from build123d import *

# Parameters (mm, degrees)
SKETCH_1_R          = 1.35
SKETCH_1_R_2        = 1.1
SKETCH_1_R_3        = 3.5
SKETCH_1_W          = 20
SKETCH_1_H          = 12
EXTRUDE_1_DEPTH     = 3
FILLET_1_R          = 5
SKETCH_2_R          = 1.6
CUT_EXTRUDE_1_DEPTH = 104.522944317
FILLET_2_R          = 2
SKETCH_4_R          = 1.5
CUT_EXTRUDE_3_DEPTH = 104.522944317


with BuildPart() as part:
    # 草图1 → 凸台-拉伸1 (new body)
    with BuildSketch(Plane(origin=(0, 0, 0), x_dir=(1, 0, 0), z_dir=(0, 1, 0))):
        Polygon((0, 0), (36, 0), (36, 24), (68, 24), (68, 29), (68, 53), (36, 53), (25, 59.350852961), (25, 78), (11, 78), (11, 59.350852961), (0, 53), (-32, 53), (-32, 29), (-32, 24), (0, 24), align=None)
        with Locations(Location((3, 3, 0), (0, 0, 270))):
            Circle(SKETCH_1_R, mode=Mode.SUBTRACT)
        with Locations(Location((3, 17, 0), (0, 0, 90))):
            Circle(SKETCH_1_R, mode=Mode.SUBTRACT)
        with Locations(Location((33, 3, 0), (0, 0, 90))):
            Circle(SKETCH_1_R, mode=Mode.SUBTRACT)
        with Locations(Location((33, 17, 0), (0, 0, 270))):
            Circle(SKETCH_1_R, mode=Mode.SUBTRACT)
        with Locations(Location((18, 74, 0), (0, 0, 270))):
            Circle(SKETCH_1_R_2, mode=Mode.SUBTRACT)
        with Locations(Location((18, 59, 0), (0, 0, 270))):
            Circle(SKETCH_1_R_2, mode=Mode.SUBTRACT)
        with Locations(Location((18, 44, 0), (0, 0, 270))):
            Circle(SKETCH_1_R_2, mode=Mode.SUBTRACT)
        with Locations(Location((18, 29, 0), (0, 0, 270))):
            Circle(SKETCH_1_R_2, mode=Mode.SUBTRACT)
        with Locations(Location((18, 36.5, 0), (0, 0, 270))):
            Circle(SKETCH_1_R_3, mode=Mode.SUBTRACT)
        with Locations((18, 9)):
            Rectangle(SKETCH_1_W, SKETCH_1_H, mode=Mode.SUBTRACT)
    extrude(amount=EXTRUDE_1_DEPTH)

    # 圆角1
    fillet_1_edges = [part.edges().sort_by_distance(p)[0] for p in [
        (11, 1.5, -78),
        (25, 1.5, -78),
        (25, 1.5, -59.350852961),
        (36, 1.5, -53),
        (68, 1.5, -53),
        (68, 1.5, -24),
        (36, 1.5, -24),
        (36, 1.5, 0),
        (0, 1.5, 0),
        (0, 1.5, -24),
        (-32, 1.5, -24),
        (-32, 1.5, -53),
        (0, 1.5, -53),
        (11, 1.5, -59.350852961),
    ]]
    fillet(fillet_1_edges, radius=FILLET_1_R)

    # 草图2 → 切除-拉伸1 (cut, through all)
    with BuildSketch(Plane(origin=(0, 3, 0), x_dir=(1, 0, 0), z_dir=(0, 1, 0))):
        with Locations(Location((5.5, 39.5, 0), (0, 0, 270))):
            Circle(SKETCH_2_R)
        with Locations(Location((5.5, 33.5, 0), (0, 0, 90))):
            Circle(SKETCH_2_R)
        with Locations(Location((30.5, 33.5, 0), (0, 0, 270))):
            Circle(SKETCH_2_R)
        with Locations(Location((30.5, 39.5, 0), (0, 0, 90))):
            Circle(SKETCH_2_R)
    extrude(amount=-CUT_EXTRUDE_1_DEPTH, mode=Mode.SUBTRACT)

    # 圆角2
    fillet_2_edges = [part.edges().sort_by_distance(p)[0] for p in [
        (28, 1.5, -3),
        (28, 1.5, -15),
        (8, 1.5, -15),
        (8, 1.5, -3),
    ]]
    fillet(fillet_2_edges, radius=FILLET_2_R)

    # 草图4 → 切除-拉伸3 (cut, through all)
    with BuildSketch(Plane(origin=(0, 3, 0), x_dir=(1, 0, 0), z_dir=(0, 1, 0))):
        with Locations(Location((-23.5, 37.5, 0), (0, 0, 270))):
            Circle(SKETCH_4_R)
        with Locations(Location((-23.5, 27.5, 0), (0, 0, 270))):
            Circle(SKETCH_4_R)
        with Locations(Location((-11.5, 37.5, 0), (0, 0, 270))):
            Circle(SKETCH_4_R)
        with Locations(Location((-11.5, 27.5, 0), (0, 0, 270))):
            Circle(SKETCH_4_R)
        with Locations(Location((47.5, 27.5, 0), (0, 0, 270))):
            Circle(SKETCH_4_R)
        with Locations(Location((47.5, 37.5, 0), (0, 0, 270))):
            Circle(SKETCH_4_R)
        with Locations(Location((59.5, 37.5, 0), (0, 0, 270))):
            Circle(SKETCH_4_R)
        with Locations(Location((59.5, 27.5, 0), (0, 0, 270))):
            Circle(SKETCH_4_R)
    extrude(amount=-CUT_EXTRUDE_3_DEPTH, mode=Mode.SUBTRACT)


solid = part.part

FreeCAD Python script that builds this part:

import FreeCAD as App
import Part
import Sketcher
Q = App.Units.Quantity


def edges_at(feature, points):
    """Names of the edges that pass closest to the given points."""
    edges = feature.Shape.Edges
    near = lambda p: min(range(len(edges)), key=lambda i: edges[i].distToShape(Part.Vertex(*p))[0])
    return sorted({f"Edge{near(p) + 1}" for p in points})

doc = App.newDocument("Part")
body = doc.addObject("PartDesign::Body", "Body")

sketch1 = body.newObject("Sketcher::SketchObject", "Sketch")
sketch1.AttachmentSupport = (doc.getObject("XZ_Plane"), [""])
sketch1.MapMode = "FlatFace"
sketch1.addGeometry(Part.LineSegment(App.Vector(0, 0, 0), App.Vector(36, 0, 0)), False)
sketch1.addGeometry(Part.LineSegment(App.Vector(36, 0, 0), App.Vector(36, -24, 0)), False)
sketch1.addGeometry(Part.LineSegment(App.Vector(36, -24, 0), App.Vector(68, -24, 0)), False)
sketch1.addGeometry(Part.LineSegment(App.Vector(68, -24, 0), App.Vector(68, -53, 0)), False)
sketch1.addGeometry(Part.LineSegment(App.Vector(68, -53, 0), App.Vector(36, -53, 0)), False)
sketch1.addGeometry(Part.LineSegment(App.Vector(36, -53, 0), App.Vector(25, -59.350853, 0)), False)
sketch1.addGeometry(Part.LineSegment(App.Vector(25, -59.350853, 0), App.Vector(25, -78, 0)), False)
sketch1.addGeometry(Part.LineSegment(App.Vector(25, -78, 0), App.Vector(11, -78, 0)), False)
sketch1.addGeometry(Part.LineSegment(App.Vector(11, -78, 0), App.Vector(11, -59.350853, 0)), False)
sketch1.addGeometry(Part.LineSegment(App.Vector(11, -59.350853, 0), App.Vector(0, -53, 0)), False)
sketch1.addGeometry(Part.LineSegment(App.Vector(0, -53, 0), App.Vector(-32, -53, 0)), False)
sketch1.addGeometry(Part.LineSegment(App.Vector(-32, -53, 0), App.Vector(-32, -24, 0)), False)
sketch1.addGeometry(Part.LineSegment(App.Vector(-32, -24, 0), App.Vector(0, -24, 0)), False)
sketch1.addGeometry(Part.LineSegment(App.Vector(0, -24, 0), App.Vector(0, 0, 0)), False)
sketch1.addGeometry(Part.Circle(App.Vector(3, -3, 0), App.Vector(0, 0, 1), 1.35), False)
sketch1.addGeometry(Part.Circle(App.Vector(3, -17, 0), App.Vector(0, 0, 1), 1.35), False)
sketch1.addGeometry(Part.LineSegment(App.Vector(28, -3, 0), App.Vector(8, -3, 0)), False)
sketch1.addGeometry(Part.LineSegment(App.Vector(8, -3, 0), App.Vector(8, -15, 0)), False)
sketch1.addGeometry(Part.LineSegment(App.Vector(8, -15, 0), App.Vector(28, -15, 0)), False)
sketch1.addGeometry(Part.LineSegment(App.Vector(28, -15, 0), App.Vector(28, -3, 0)), False)
sketch1.addGeometry(Part.Circle(App.Vector(33, -3, 0), App.Vector(0, 0, 1), 1.35), False)
sketch1.addGeometry(Part.Circle(App.Vector(33, -17, 0), App.Vector(0, 0, 1), 1.35), False)
sketch1.addGeometry(Part.Circle(App.Vector(18, -29, 0), App.Vector(0, 0, 1), 1.1), False)
sketch1.addGeometry(Part.Circle(App.Vector(18, -36.5, 0), App.Vector(0, 0, 1), 3.5), False)
sketch1.addGeometry(Part.Circle(App.Vector(18, -44, 0), App.Vector(0, 0, 1), 1.1), False)
sketch1.addGeometry(Part.Circle(App.Vector(18, -59, 0), App.Vector(0, 0, 1), 1.1), False)
sketch1.addGeometry(Part.Circle(App.Vector(18, -74, 0), App.Vector(0, 0, 1), 1.1), False)
sketch1.addConstraint(Sketcher.Constraint("Coincident", 0, 2, 1, 1))
sketch1.addConstraint(Sketcher.Constraint("Coincident", 1, 2, 2, 1))
sketch1.addConstraint(Sketcher.Constraint("Coincident", 2, 2, 3, 1))
sketch1.addConstraint(Sketcher.Constraint("Coincident", 3, 2, 4, 1))
sketch1.addConstraint(Sketcher.Constraint("Coincident", 4, 2, 5, 1))
sketch1.addConstraint(Sketcher.Constraint("Coincident", 5, 2, 6, 1))
sketch1.addConstraint(Sketcher.Constraint("Coincident", 6, 2, 7, 1))
sketch1.addConstraint(Sketcher.Constraint("Coincident", 7, 2, 8, 1))
sketch1.addConstraint(Sketcher.Constraint("Coincident", 8, 2, 9, 1))
sketch1.addConstraint(Sketcher.Constraint("Coincident", 9, 2, 10, 1))
sketch1.addConstraint(Sketcher.Constraint("Coincident", 10, 2, 11, 1))
sketch1.addConstraint(Sketcher.Constraint("Coincident", 11, 2, 12, 1))
sketch1.addConstraint(Sketcher.Constraint("Coincident", 12, 2, 13, 1))
sketch1.addConstraint(Sketcher.Constraint("Coincident", 13, 2, 0, 1))
sketch1.addConstraint(Sketcher.Constraint("Coincident", 16, 2, 17, 1))
sketch1.addConstraint(Sketcher.Constraint("Coincident", 17, 2, 18, 1))
sketch1.addConstraint(Sketcher.Constraint("Coincident", 18, 2, 19, 1))
sketch1.addConstraint(Sketcher.Constraint("Coincident", 19, 2, 16, 1))
sketch1.addConstraint(Sketcher.Constraint("Horizontal", 0))
sketch1.addConstraint(Sketcher.Constraint("Vertical", 1))
sketch1.addConstraint(Sketcher.Constraint("Horizontal", 2))
sketch1.addConstraint(Sketcher.Constraint("Vertical", 3))
sketch1.addConstraint(Sketcher.Constraint("Horizontal", 4))
sketch1.addConstraint(Sketcher.Constraint("Vertical", 6))
sketch1.addConstraint(Sketcher.Constraint("Horizontal", 7))
sketch1.addConstraint(Sketcher.Constraint("Vertical", 8))
sketch1.addConstraint(Sketcher.Constraint("Horizontal", 10))
sketch1.addConstraint(Sketcher.Constraint("Vertical", 11))
sketch1.addConstraint(Sketcher.Constraint("Horizontal", 12))
sketch1.addConstraint(Sketcher.Constraint("Vertical", 13))
sketch1.addConstraint(Sketcher.Constraint("Horizontal", 16))
sketch1.addConstraint(Sketcher.Constraint("Vertical", 17))
sketch1.addConstraint(Sketcher.Constraint("Horizontal", 18))
sketch1.addConstraint(Sketcher.Constraint("Vertical", 19))
sketch1.addConstraint(Sketcher.Constraint("Coincident", 13, 2, -1, 1))
sketch1.addConstraint(Sketcher.Constraint("Equal", 14, 15))
sketch1.addConstraint(Sketcher.Constraint("Equal", 15, 20))
sketch1.addConstraint(Sketcher.Constraint("Equal", 20, 21))
sketch1.addConstraint(Sketcher.Constraint("Equal", 22, 24))
sketch1.addConstraint(Sketcher.Constraint("Equal", 24, 25))
sketch1.addConstraint(Sketcher.Constraint("Equal", 25, 26))
sketch1.addConstraint(Sketcher.Constraint("PointOnObject", 9, 2, -2))
sketch1.addConstraint(Sketcher.Constraint("Horizontal", 14, 3, 20, 3))
sketch1.addConstraint(Sketcher.Constraint("Horizontal", 15, 3, 21, 3))
sketch1.addConstraint(Sketcher.Constraint("Horizontal", 5, 2, 8, 2))
sketch1.addConstraint(Sketcher.Constraint("Horizontal", 4, 2, 9, 2))
sketch1.addConstraint(Sketcher.Constraint("Horizontal", 2, 2, 11, 2))
sketch1.addConstraint(Sketcher.Constraint("Horizontal", 20, 3, 16, 2))
sketch1.addConstraint(Sketcher.Constraint("Vertical", 14, 3, 15, 3))
sketch1.addConstraint(Sketcher.Constraint("Vertical", 20, 3, 21, 3))
sketch1.addConstraint(Sketcher.Constraint("Vertical", 22, 3, 23, 3))
sketch1.addConstraint(Sketcher.Constraint("Vertical", 23, 3, 24, 3))
sketch1.addConstraint(Sketcher.Constraint("Vertical", 24, 3, 25, 3))
sketch1.addConstraint(Sketcher.Constraint("Vertical", 25, 3, 26, 3))
sketch1.addConstraint(Sketcher.Constraint("Vertical", 1, 2, 4, 2))
sketch1.addConstraint(Sketcher.Constraint("Equal", 4, 10))
sketch1.addConstraint(Sketcher.Constraint("Equal", 5, 9))
sketch1.addConstraint(Sketcher.Constraint("Diameter", 23, Q("7 mm")))
sketch1.addConstraint(Sketcher.Constraint("Diameter", 14, Q("2.7 mm")))
sketch1.addConstraint(Sketcher.Constraint("Diameter", 22, Q("2.2 mm")))
sketch1.addConstraint(Sketcher.Constraint("DistanceX", 0, 1, 0, 2, Q("36 mm")))
sketch1.addConstraint(Sketcher.Constraint("DistanceX", 2, 1, 2, 2, Q("32 mm")))
sketch1.addConstraint(Sketcher.Constraint("DistanceX", 7, 2, 7, 1, Q("14 mm")))
sketch1.addConstraint(Sketcher.Constraint("DistanceX", 16, 2, 16, 1, Q("20 mm")))
sketch1.addConstraint(Sketcher.Constraint("DistanceY", 1, 2, 1, 1, Q("24 mm")))
sketch1.addConstraint(Sketcher.Constraint("DistanceY", 3, 2, 3, 1, Q("29 mm")))
sketch1.addConstraint(Sketcher.Constraint("DistanceY", 17, 2, 17, 1, Q("12 mm")))
sketch1.addConstraint(Sketcher.Constraint("Angle", 5, Q("-150 deg")))
sketch1.addConstraint(Sketcher.Constraint("DistanceX", -1, 1, 14, 3, Q("3 mm")))
sketch1.addConstraint(Sketcher.Constraint("DistanceY", 14, 3, -1, 1, Q("3 mm")))
sketch1.addConstraint(Sketcher.Constraint("DistanceY", 15, 3, -1, 1, Q("17 mm")))
sketch1.addConstraint(Sketcher.Constraint("DistanceX", -1, 1, 20, 3, Q("33 mm")))
sketch1.addConstraint(Sketcher.Constraint("DistanceX", -1, 1, 22, 3, Q("18 mm")))
sketch1.addConstraint(Sketcher.Constraint("DistanceY", 22, 3, -1, 1, Q("29 mm")))
sketch1.addConstraint(Sketcher.Constraint("DistanceY", 24, 3, -1, 1, Q("44 mm")))
sketch1.addConstraint(Sketcher.Constraint("DistanceY", 25, 3, -1, 1, Q("59 mm")))
sketch1.addConstraint(Sketcher.Constraint("DistanceY", 26, 3, -1, 1, Q("74 mm")))
sketch1.addConstraint(Sketcher.Constraint("DistanceY", 6, 2, -1, 1, Q("78 mm")))
sketch1.addConstraint(Sketcher.Constraint("DistanceX", -1, 1, 16, 2, Q("8 mm")))
sketch1.addConstraint(Sketcher.Constraint("DistanceY", 23, 3, -1, 1, Q("36.5 mm")))
pad1 = body.newObject("PartDesign::Pad", "Pad")
pad1.Profile = sketch1
pad1.Length = 3
pad1.Reversed = True
doc.recompute()

fillet = body.newObject("PartDesign::Fillet", "Fillet")
fillet.Base = (pad1, edges_at(pad1, [
    (11, 1.5, -78),
    (25, 1.5, -78),
    (25, 1.5, -59.351),
    (36, 1.5, -53),
    (68, 1.5, -53),
    (68, 1.5, -24),
    (36, 1.5, -24),
    (36, 1.5, 0),
    (0, 1.5, 0),
    (0, 1.5, -24),
    (-32, 1.5, -24),
    (-32, 1.5, -53),
    (0, 1.5, -53),
    (11, 1.5, -59.351),
]))
fillet.Radius = 5

sketch2 = body.newObject("Sketcher::SketchObject", "Sketch001")
sketch2.AttachmentSupport = (doc.getObject("XZ_Plane"), [""])
sketch2.MapMode = "FlatFace"
sketch2.AttachmentOffset = App.Placement(App.Vector(0, 0, -3), App.Rotation())
sketch2.addGeometry(Part.Circle(App.Vector(5.5, -39.5, 0), App.Vector(0, 0, 1), 1.6), False)
sketch2.addGeometry(Part.Circle(App.Vector(5.5, -33.5, 0), App.Vector(0, 0, 1), 1.6), False)
sketch2.addGeometry(Part.Circle(App.Vector(30.5, -33.5, 0), App.Vector(0, 0, 1), 1.6), False)
sketch2.addGeometry(Part.Circle(App.Vector(30.5, -39.5, 0), App.Vector(0, 0, 1), 1.6), False)
sketch2.addConstraint(Sketcher.Constraint("Equal", 0, 1))
sketch2.addConstraint(Sketcher.Constraint("Equal", 1, 2))
sketch2.addConstraint(Sketcher.Constraint("Equal", 2, 3))
sketch2.addConstraint(Sketcher.Constraint("Horizontal", 1, 3, 2, 3))
sketch2.addConstraint(Sketcher.Constraint("Horizontal", 0, 3, 3, 3))
sketch2.addConstraint(Sketcher.Constraint("Vertical", 0, 3, 1, 3))
sketch2.addConstraint(Sketcher.Constraint("Vertical", 2, 3, 3, 3))
sketch2.addConstraint(Sketcher.Constraint("Diameter", 0, Q("3.2 mm")))
sketch2.addConstraint(Sketcher.Constraint("DistanceY", 0, 3, 1, 3, Q("6 mm")))
sketch2.addConstraint(Sketcher.Constraint("DistanceX", 1, 3, 2, 3, Q("25 mm")))
sketch2.addConstraint(Sketcher.Constraint("DistanceX", -1, 1, 0, 3, Q("5.5 mm")))
sketch2.addConstraint(Sketcher.Constraint("DistanceY", 0, 3, -1, 1, Q("39.5 mm")))
pocket1 = body.newObject("PartDesign::Pocket", "Pocket")
pocket1.Profile = sketch2
pocket1.Type = "ThroughAll"
pocket1.Reversed = True
doc.recompute()

fillet2 = body.newObject("PartDesign::Fillet", "Fillet001")
fillet2.Base = (pocket1, edges_at(pocket1, [
    (28, 1.5, -3),
    (28, 1.5, -15),
    (8, 1.5, -15),
    (8, 1.5, -3),
]))
fillet2.Radius = 2

sketch3 = body.newObject("Sketcher::SketchObject", "Sketch002")
sketch3.AttachmentSupport = (doc.getObject("XZ_Plane"), [""])
sketch3.MapMode = "FlatFace"
sketch3.AttachmentOffset = App.Placement(App.Vector(0, 0, -3), App.Rotation())
sketch3.addGeometry(Part.Circle(App.Vector(-23.5, -37.5, 0), App.Vector(0, 0, 1), 1.5), False)
sketch3.addGeometry(Part.Circle(App.Vector(-23.5, -27.5, 0), App.Vector(0, 0, 1), 1.5), False)
sketch3.addGeometry(Part.Circle(App.Vector(-11.5, -37.5, 0), App.Vector(0, 0, 1), 1.5), False)
sketch3.addGeometry(Part.Circle(App.Vector(-11.5, -27.5, 0), App.Vector(0, 0, 1), 1.5), False)
sketch3.addGeometry(Part.Circle(App.Vector(47.5, -27.5, 0), App.Vector(0, 0, 1), 1.5), False)
sketch3.addGeometry(Part.Circle(App.Vector(47.5, -37.5, 0), App.Vector(0, 0, 1), 1.5), False)
sketch3.addGeometry(Part.Circle(App.Vector(59.5, -37.5, 0), App.Vector(0, 0, 1), 1.5), False)
sketch3.addGeometry(Part.Circle(App.Vector(59.5, -27.5, 0), App.Vector(0, 0, 1), 1.5), False)
sketch3.addConstraint(Sketcher.Constraint("Equal", 0, 1))
sketch3.addConstraint(Sketcher.Constraint("Equal", 1, 2))
sketch3.addConstraint(Sketcher.Constraint("Equal", 2, 3))
sketch3.addConstraint(Sketcher.Constraint("Equal", 3, 4))
sketch3.addConstraint(Sketcher.Constraint("Equal", 4, 5))
sketch3.addConstraint(Sketcher.Constraint("Equal", 5, 6))
sketch3.addConstraint(Sketcher.Constraint("Equal", 6, 7))
sketch3.addConstraint(Sketcher.Constraint("Horizontal", 0, 3, 2, 3))
sketch3.addConstraint(Sketcher.Constraint("Horizontal", 1, 3, 3, 3))
sketch3.addConstraint(Sketcher.Constraint("Horizontal", 3, 3, 4, 3))
sketch3.addConstraint(Sketcher.Constraint("Horizontal", 2, 3, 5, 3))
sketch3.addConstraint(Sketcher.Constraint("Horizontal", 5, 3, 6, 3))
sketch3.addConstraint(Sketcher.Constraint("Horizontal", 4, 3, 7, 3))
sketch3.addConstraint(Sketcher.Constraint("Vertical", 0, 3, 1, 3))
sketch3.addConstraint(Sketcher.Constraint("Vertical", 2, 3, 3, 3))
sketch3.addConstraint(Sketcher.Constraint("Vertical", 4, 3, 5, 3))
sketch3.addConstraint(Sketcher.Constraint("Vertical", 6, 3, 7, 3))
sketch3.addConstraint(Sketcher.Constraint("Diameter", 0, Q("3 mm")))
sketch3.addConstraint(Sketcher.Constraint("DistanceY", 0, 3, 1, 3, Q("10 mm")))
sketch3.addConstraint(Sketcher.Constraint("DistanceX", 0, 3, 2, 3, Q("12 mm")))
sketch3.addConstraint(Sketcher.Constraint("DistanceX", 3, 3, 4, 3, Q("59 mm")))
sketch3.addConstraint(Sketcher.Constraint("DistanceX", 5, 3, 6, 3, Q("12 mm")))
sketch3.addConstraint(Sketcher.Constraint("DistanceX", 0, 3, -1, 1, Q("23.5 mm")))
sketch3.addConstraint(Sketcher.Constraint("DistanceY", 0, 3, -1, 1, Q("37.5 mm")))
pocket2 = body.newObject("PartDesign::Pocket", "Pocket001")
pocket2.Profile = sketch3
pocket2.Type = "ThroughAll"
pocket2.Reversed = True

doc.recompute()
